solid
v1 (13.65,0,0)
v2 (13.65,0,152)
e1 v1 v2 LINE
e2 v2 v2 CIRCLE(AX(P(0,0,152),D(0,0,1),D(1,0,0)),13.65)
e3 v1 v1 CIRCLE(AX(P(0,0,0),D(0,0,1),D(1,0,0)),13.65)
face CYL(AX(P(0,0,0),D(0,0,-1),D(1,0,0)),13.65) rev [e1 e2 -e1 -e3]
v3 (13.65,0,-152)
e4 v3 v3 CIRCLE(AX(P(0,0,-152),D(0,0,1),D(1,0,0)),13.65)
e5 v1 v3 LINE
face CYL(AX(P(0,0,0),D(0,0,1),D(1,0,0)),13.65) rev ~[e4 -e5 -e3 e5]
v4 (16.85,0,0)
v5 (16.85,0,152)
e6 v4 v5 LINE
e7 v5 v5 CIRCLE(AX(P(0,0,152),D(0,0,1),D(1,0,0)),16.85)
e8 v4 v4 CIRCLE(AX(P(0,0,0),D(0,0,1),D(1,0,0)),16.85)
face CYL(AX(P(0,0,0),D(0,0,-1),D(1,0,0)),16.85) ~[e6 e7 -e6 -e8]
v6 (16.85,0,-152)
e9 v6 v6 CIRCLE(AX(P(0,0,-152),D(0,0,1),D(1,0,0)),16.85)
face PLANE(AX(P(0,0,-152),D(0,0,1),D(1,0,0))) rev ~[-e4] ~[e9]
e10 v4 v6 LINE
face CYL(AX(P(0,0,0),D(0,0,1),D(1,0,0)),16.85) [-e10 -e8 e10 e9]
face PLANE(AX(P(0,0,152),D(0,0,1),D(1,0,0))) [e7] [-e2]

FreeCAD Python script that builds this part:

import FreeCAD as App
import Part
import Sketcher
from FreeCAD import Vector

doc = App.newDocument("Part")
body = doc.addObject("PartDesign::Body", "Body")

# Sketch on XY plane
sketch1 = body.newObject("Sketcher::SketchObject", "Sketch")
sketch1.AttachmentSupport = (doc.getObject("XY_Plane"), [""])
sketch1.MapMode = "FlatFace"
sketch1.addGeometry([
    Part.Circle(Vector(0, 0, 0), Vector(0, 0, 1), 17),
    Part.Circle(Vector(0, 0, 0), Vector(0, 0, 1), 14),
], False)
sketch1.addConstraint([
    Sketcher.Constraint("Coincident", 0, 3, -1, 1),
    Sketcher.Constraint("Coincident", 1, 3, -1, 1),
    Sketcher.Constraint("Diameter", 0, 33.7),
    Sketcher.Constraint("Diameter", 1, 27.3),
])
pad1 = body.newObject("PartDesign::Pad", "Pad")
pad1.Profile = sketch1
pad1.Length = 304
pad1.Midplane = True

doc.recompute()
